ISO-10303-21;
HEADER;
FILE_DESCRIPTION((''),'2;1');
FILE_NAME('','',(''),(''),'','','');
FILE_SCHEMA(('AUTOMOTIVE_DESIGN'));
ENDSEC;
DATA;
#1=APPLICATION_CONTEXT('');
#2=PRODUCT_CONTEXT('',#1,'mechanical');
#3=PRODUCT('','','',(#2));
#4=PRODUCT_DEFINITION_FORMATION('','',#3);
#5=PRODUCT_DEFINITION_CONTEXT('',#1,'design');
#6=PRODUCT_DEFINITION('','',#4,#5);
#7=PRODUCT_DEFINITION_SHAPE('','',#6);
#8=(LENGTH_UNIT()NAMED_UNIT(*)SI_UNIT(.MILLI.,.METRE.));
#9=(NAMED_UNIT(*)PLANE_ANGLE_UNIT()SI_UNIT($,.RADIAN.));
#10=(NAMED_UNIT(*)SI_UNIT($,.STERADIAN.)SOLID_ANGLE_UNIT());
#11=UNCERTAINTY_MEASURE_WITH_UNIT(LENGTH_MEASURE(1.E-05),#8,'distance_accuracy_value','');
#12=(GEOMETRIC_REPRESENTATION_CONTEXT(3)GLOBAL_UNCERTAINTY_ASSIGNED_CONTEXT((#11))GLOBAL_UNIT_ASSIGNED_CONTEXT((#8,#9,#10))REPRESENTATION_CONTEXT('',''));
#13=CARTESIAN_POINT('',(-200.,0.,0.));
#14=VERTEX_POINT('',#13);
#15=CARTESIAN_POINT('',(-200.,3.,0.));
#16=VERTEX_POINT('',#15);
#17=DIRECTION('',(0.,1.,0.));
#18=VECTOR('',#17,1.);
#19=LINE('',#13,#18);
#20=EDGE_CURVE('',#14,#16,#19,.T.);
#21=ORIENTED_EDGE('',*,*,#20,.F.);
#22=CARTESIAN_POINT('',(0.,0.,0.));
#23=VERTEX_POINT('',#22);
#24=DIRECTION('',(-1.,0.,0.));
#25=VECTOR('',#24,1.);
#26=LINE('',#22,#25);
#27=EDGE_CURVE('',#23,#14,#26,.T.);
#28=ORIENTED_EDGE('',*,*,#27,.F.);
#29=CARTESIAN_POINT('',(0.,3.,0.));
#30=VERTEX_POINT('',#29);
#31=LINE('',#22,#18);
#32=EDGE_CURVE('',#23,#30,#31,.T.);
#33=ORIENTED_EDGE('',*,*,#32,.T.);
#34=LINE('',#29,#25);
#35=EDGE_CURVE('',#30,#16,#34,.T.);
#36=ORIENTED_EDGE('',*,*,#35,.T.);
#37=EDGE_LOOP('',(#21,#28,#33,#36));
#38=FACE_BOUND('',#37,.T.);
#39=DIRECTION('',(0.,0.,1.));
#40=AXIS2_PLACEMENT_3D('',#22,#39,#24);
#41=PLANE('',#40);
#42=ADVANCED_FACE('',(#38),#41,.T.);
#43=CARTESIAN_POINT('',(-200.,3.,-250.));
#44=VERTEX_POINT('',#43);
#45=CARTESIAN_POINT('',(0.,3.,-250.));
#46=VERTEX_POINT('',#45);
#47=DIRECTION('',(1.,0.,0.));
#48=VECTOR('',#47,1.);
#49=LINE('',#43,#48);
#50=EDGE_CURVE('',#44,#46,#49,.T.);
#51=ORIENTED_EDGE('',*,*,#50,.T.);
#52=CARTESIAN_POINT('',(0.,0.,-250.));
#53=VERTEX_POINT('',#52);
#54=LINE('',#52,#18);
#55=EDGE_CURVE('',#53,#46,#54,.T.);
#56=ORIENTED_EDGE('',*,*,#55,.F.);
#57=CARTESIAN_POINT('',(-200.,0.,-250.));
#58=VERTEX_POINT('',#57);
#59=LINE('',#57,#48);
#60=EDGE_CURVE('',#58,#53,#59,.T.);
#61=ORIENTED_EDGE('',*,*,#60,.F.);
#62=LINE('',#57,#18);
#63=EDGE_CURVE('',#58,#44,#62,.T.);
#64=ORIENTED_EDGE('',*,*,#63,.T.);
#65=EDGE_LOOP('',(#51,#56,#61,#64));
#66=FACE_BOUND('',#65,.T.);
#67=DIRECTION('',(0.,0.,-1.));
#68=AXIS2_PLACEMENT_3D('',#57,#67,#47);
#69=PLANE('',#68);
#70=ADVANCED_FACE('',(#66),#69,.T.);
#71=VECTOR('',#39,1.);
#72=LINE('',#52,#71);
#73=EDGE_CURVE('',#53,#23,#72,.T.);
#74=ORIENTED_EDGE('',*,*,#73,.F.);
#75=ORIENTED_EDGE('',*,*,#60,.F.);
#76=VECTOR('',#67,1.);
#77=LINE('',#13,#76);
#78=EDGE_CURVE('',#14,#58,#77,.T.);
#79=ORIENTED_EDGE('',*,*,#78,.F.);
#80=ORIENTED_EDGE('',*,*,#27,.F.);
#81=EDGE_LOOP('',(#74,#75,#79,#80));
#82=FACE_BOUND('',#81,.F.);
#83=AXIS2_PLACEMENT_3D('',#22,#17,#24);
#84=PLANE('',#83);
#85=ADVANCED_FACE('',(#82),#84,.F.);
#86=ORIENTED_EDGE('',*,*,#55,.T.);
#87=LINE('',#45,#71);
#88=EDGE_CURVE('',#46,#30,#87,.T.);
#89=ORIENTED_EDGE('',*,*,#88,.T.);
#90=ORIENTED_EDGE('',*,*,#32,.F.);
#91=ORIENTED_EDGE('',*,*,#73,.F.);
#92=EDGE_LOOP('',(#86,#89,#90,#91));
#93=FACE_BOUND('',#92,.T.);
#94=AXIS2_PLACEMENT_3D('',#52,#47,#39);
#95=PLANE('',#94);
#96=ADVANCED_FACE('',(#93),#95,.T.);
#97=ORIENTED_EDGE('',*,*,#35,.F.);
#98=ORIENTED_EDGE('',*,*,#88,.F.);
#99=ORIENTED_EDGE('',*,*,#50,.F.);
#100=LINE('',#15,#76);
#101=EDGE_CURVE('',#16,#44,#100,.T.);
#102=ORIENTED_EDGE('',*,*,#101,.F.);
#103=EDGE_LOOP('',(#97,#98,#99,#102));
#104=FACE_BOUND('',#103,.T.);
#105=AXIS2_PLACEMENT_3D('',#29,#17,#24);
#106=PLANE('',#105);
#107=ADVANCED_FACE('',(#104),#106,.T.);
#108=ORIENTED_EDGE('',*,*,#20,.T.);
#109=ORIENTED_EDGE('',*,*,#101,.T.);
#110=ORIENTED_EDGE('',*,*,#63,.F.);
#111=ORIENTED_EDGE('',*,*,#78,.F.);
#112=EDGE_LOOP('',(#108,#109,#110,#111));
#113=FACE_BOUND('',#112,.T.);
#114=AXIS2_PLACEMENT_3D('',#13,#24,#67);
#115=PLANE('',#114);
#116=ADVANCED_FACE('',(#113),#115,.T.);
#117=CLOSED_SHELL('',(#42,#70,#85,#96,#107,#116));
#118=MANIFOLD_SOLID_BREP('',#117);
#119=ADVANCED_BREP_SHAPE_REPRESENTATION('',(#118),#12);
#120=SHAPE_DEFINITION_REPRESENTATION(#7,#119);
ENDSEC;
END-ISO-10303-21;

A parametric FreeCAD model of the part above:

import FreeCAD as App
import Part
import Sketcher

V = App.Vector
Q = App.Units.Quantity


def add_polygon(sketch, points):
    """Adds a closed chain of lines whose ends are joined by coincident constraints."""
    first, n = sketch.GeometryCount, len(points)
    for a, b in zip(points, points[1:] + points[:1]):
        sketch.addGeometry(Part.LineSegment(App.Vector(*a, 0), App.Vector(*b, 0)), False)
    for i in range(n):
        sketch.addConstraint(Sketcher.Constraint("Coincident", first + i, 2, first + (i + 1) % n, 1))

doc = App.newDocument("Part")
body = doc.addObject("PartDesign::Body", "Body")

sketch1 = body.newObject("Sketcher::SketchObject", "Sketch")
sketch1.AttachmentSupport = (doc.getObject("XZ_Plane"), [""])
sketch1.MapMode = "FlatFace"
add_polygon(sketch1, [(-200, 0), (0, 0), (0, -250), (-200, -250)])
sketch1.addConstraint([
    Sketcher.Constraint("Horizontal", 0),
    Sketcher.Constraint("Vertical", 1),
    Sketcher.Constraint("Horizontal", 2),
    Sketcher.Constraint("Vertical", 3),
    Sketcher.Constraint("Coincident", 0, 2, -1, 1),
    Sketcher.Constraint("DistanceX", 0, 1, 0, 2, Q("200 mm")),
    Sketcher.Constraint("DistanceY", 1, 2, 1, 1, Q("250 mm")),
])
pad1 = body.newObject("PartDesign::Pad", "Pad")
pad1.Profile = sketch1
pad1.Length = 3
pad1.Reversed = True

doc.recompute()
